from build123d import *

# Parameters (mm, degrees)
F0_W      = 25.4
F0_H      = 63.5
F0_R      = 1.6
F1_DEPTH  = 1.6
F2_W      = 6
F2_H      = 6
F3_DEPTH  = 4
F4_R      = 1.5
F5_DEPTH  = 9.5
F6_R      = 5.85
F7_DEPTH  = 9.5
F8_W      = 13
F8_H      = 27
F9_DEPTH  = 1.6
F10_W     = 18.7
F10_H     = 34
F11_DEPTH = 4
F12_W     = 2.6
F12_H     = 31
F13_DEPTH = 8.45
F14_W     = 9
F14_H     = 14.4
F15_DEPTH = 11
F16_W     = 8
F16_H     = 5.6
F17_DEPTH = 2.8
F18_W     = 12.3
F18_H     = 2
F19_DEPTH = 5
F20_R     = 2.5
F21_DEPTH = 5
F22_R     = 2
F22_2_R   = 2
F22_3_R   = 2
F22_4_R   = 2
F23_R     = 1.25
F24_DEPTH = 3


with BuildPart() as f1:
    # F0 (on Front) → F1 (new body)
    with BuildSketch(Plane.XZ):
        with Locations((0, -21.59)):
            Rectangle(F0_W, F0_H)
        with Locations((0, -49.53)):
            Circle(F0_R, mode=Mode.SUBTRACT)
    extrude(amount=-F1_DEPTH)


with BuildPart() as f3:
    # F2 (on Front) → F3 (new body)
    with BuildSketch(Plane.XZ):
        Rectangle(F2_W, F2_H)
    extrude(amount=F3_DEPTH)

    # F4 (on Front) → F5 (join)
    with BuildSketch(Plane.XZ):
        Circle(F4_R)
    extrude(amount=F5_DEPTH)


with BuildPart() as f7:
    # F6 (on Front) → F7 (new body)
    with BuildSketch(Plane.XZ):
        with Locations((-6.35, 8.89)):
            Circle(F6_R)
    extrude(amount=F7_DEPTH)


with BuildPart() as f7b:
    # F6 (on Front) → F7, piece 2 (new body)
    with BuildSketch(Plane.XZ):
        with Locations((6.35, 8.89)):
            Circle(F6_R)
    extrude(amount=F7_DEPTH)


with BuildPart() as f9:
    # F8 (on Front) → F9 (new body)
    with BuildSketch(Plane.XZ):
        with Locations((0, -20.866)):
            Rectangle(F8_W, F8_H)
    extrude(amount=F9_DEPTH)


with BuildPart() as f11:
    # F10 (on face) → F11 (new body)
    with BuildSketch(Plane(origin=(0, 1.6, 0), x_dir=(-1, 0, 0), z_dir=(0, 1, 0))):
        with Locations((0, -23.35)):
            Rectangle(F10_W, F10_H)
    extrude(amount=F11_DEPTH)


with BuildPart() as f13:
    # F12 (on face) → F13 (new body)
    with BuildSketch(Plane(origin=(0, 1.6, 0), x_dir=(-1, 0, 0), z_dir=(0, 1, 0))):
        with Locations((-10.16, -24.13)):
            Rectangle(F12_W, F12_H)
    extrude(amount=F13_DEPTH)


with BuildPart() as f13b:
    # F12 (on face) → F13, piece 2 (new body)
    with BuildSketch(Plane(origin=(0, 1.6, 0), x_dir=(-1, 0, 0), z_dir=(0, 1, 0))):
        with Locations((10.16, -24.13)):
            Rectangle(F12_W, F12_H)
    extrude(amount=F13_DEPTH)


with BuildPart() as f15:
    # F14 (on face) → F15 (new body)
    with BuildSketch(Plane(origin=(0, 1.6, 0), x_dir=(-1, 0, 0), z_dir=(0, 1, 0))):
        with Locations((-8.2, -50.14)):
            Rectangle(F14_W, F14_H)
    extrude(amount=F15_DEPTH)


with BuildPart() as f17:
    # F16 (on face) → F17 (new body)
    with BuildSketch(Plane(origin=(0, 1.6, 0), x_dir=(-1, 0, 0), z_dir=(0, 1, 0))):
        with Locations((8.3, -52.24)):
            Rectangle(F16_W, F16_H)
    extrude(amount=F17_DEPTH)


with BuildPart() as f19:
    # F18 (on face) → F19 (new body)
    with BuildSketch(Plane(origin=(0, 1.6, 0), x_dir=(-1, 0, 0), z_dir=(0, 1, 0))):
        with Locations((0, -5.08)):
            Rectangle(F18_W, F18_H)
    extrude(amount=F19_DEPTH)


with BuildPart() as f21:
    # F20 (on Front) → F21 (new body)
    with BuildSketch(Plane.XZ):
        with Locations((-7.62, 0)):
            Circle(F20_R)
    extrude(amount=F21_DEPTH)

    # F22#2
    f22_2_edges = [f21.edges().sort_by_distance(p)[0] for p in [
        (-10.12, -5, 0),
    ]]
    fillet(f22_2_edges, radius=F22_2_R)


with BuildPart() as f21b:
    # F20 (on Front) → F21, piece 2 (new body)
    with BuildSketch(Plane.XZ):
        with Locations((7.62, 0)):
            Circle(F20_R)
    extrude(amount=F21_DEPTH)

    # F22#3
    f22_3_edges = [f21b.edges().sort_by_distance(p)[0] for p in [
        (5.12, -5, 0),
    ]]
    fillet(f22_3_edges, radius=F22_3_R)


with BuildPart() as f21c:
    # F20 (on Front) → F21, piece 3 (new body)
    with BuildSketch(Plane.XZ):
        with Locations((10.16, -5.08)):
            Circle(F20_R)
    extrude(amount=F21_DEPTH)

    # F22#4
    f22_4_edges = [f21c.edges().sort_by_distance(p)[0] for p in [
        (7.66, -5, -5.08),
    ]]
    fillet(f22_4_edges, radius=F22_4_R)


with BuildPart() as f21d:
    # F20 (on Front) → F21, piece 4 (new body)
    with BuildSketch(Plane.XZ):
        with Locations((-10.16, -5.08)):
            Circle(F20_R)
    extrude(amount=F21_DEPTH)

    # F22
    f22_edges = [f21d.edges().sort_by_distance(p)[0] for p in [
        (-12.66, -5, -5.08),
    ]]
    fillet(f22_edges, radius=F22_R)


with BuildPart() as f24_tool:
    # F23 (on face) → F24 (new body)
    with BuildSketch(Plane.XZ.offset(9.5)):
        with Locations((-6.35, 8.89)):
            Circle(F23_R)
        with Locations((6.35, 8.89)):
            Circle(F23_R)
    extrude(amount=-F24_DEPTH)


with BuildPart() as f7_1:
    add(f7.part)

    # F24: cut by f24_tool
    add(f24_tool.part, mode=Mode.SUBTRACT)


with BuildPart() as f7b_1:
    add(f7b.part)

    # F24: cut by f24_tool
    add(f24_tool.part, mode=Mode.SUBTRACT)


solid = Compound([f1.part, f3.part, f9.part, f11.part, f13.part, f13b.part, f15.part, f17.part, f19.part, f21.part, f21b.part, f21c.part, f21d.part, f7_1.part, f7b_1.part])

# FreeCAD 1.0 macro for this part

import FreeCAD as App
import Part
import Sketcher

V = App.Vector


def edges_at(feature, points):
    """Names of the edges that pass closest to the given points."""
    edges = feature.Shape.Edges
    near = lambda p: min(range(len(edges)), key=lambda i: edges[i].distToShape(Part.Vertex(*p))[0])
    return sorted({f"Edge{near(p) + 1}" for p in points})


def add_polygon(sketch, points):
    """Adds a closed chain of lines whose ends are joined by coincident constraints."""
    first, n = sketch.GeometryCount, len(points)
    for a, b in zip(points, points[1:] + points[:1]):
        sketch.addGeometry(Part.LineSegment(App.Vector(*a, 0), App.Vector(*b, 0)), False)
    for i in range(n):
        sketch.addConstraint(Sketcher.Constraint("Coincident", first + i, 2, first + (i + 1) % n, 1))

doc = App.newDocument("Part")
body = doc.addObject("PartDesign::Body", "Body")

# Sketch on XZ plane
sketch1 = body.newObject("Sketcher::SketchObject", "Sketch")
sketch1.AttachmentSupport = (doc.getObject("XZ_Plane"), [""])
sketch1.MapMode = "FlatFace"
add_polygon(sketch1, [(-12.7, 10.2), (-12.7, -53.3), (12.7, -53.3), (12.7, 10.2)])  # lines 0-3
sketch1.addGeometry(Part.Circle(V(0, -49.5, 0), V(0, 0, 1), 1.6), False)  # 4
sketch1.addConstraint([
    Sketcher.Constraint("Vertical", 0),
    Sketcher.Constraint("Horizontal", 1),
    Sketcher.Constraint("Vertical", 2),
    Sketcher.Constraint("Horizontal", 3),
    Sketcher.Constraint("PointOnObject", 4, 3, -2),
    Sketcher.Constraint("Diameter", 4, 3.2),
    Sketcher.Constraint("DistanceX", 1, 1, 1, 2, 25.4),
    Sketcher.Constraint("DistanceY", 0, 2, 0, 1, 63.5),
    Sketcher.Constraint("DistanceX", 0, 2, -1, 1, 12.7),
    Sketcher.Constraint("DistanceY", 4, 3, -1, 1, 49.53),
    Sketcher.Constraint("DistanceY", 0, 2, -1, 1, 53.34),
])
pad1 = body.newObject("PartDesign::Pad", "Pad")
pad1.Profile = sketch1
pad1.Length = 1.6
pad1.Reversed = True
body2 = doc.addObject("PartDesign::Body", "Body001")

# Sketch on XZ plane
sketch2 = body2.newObject("Sketcher::SketchObject", "Sketch001")
sketch2.AttachmentSupport = (doc.getObject("XZ_Plane001"), [""])
sketch2.MapMode = "FlatFace"
add_polygon(sketch2, [(-3, 3), (-3, -3), (3, -3), (3, 3)])  # lines 0-3
sketch2.addConstraint([
    Sketcher.Constraint("Vertical", 0),
    Sketcher.Constraint("Horizontal", 1),
    Sketcher.Constraint("Vertical", 2),
    Sketcher.Constraint("Horizontal", 3),
    Sketcher.Constraint("Symmetric", 0, 2, 2, 2, -1, 1),
    Sketcher.Constraint("Equal", 3, 0),
    Sketcher.Constraint("DistanceX", 1, 1, 1, 2, 6.0),
])
pad2 = body2.newObject("PartDesign::Pad", "Pad001")
pad2.Profile = sketch2
pad2.Length = 4

# Sketch on XZ plane
sketch3 = body2.newObject("Sketcher::SketchObject", "Sketch002")
sketch3.AttachmentSupport = (doc.getObject("XZ_Plane001"), [""])
sketch3.MapMode = "FlatFace"
sketch3.addGeometry(Part.Circle(V(0, 0, 0), V(0, 0, 1), 1.5), False)
sketch3.addConstraint([
    Sketcher.Constraint("Coincident", 0, 3, -1, 1),
    Sketcher.Constraint("Diameter", 0, 3.0),
])
pad3 = body2.newObject("PartDesign::Pad", "Pad002")
pad3.Profile = sketch3
pad3.Length = 9.5
body3 = doc.addObject("PartDesign::Body", "Body002")

# Sketch on XZ plane
sketch4 = body3.newObject("Sketcher::SketchObject", "Sketch003")
sketch4.AttachmentSupport = (doc.getObject("XZ_Plane002"), [""])
sketch4.MapMode = "FlatFace"
sketch4.addGeometry(Part.Circle(V(-6, 9, 0), V(0, 0, 1), 6), False)
sketch4.addConstraint([
    Sketcher.Constraint("Diameter", 0, 11.7),
    Sketcher.Constraint("DistanceX", 0, 3, -1, 1, 6.35),
    Sketcher.Constraint("DistanceY", -1, 1, 0, 3, 8.89),
])
pad4 = body3.newObject("PartDesign::Pad", "Pad003")
pad4.Profile = sketch4
pad4.Length = 9.5
body4 = doc.addObject("PartDesign::Body", "Body003")

# Sketch on XZ plane
sketch5 = body4.newObject("Sketcher::SketchObject", "Sketch004")
sketch5.AttachmentSupport = (doc.getObject("XZ_Plane003"), [""])
sketch5.MapMode = "FlatFace"
sketch5.addGeometry(Part.Circle(V(6, 9, 0), V(0, 0, 1), 6), False)
sketch5.addConstraint([
    Sketcher.Constraint("Diameter", 0, 11.7),
    Sketcher.Constraint("DistanceX", -1, 1, 0, 3, 6.35),
    Sketcher.Constraint("DistanceY", -1, 1, 0, 3, 8.89),
])
pad5 = body4.newObject("PartDesign::Pad", "Pad004")
pad5.Profile = sketch5
pad5.Length = 9.5
body5 = doc.addObject("PartDesign::Body", "Body004")

# Sketch on XZ plane
sketch6 = body5.newObject("Sketcher::SketchObject", "Sketch005")
sketch6.AttachmentSupport = (doc.getObject("XZ_Plane004"), [""])
sketch6.MapMode = "FlatFace"
add_polygon(sketch6, [(-6, -7), (-6, -34), (6, -34), (6, -7)])  # lines 0-3
sketch6.addConstraint([
    Sketcher.Constraint("Vertical", 0),
    Sketcher.Constraint("Horizontal", 1),
    Sketcher.Constraint("Vertical", 2),
    Sketcher.Constraint("Horizontal", 3),
    Sketcher.Constraint("DistanceX", 1, 1, 1, 2, 13.0),
    Sketcher.Constraint("DistanceY", 0, 2, 0, 1, 27.0),
    Sketcher.Constraint("DistanceX", 0, 2, -1, 1, 6.5),
    Sketcher.Constraint("DistanceY", 0, 2, -1, 1, 34.366),
])
pad6 = body5.newObject("PartDesign::Pad", "Pad005")
pad6.Profile = sketch6
pad6.Length = 1.6
body6 = doc.addObject("PartDesign::Body", "Body005")

# Sketch on XZ plane
sketch7 = body6.newObject("Sketcher::SketchObject", "Sketch006")
sketch7.AttachmentSupport = (doc.getObject("XZ_Plane005"), [""])
sketch7.MapMode = "FlatFace"
sketch7.AttachmentOffset = App.Placement(V(0, 0, -1.6), App.Rotation())
add_polygon(sketch7, [(9, -6), (9, -40), (-9, -40), (-9, -6)])  # lines 0-3
sketch7.addConstraint([
    Sketcher.Constraint("Vertical", 0),
    Sketcher.Constraint("Horizontal", 1),
    Sketcher.Constraint("Vertical", 2),
    Sketcher.Constraint("Horizontal", 3),
    Sketcher.Constraint("DistanceY", 0, 2, 0, 1, 34.0),
    Sketcher.Constraint("DistanceX", 1, 2, 1, 1, 18.7),
    Sketcher.Constraint("DistanceX", -1, 1, 0, 2, 9.35),
    Sketcher.Constraint("DistanceY", 0, 2, -1, 1, 40.35),
])
pad7 = body6.newObject("PartDesign::Pad", "Pad006")
pad7.Profile = sketch7
pad7.Length = 4
pad7.Reversed = True
body7 = doc.addObject("PartDesign::Body", "Body006")

# Sketch on XZ plane
sketch8 = body7.newObject("Sketcher::SketchObject", "Sketch007")
sketch8.AttachmentSupport = (doc.getObject("XZ_Plane006"), [""])
sketch8.MapMode = "FlatFace"
sketch8.AttachmentOffset = App.Placement(V(0, 0, -1.6), App.Rotation())
add_polygon(sketch8, [(11.5, -8.6), (11.5, -39.6), (8.9, -39.6), (8.9, -8.6)])  # lines 0-3
sketch8.addConstraint([
    Sketcher.Constraint("Vertical", 0),
    Sketcher.Constraint("Horizontal", 1),
    Sketcher.Constraint("Vertical", 2),
    Sketcher.Constraint("Horizontal", 3),
    Sketcher.Constraint("DistanceY", 0, 2, 0, 1, 31.0),
    Sketcher.Constraint("DistanceX", 1, 2, 1, 1, 2.6),
    Sketcher.Constraint("DistanceX", -1, 1, 0, 2, 11.46),
    Sketcher.Constraint("DistanceY", 0, 2, -1, 1, 39.63),
])
pad8 = body7.newObject("PartDesign::Pad", "Pad007")
pad8.Profile = sketch8
pad8.Length = 8.45
pad8.Reversed = True
body8 = doc.addObject("PartDesign::Body", "Body007")

# Sketch on XZ plane
sketch9 = body8.newObject("Sketcher::SketchObject", "Sketch008")
sketch9.AttachmentSupport = (doc.getObject("XZ_Plane007"), [""])
sketch9.MapMode = "FlatFace"
sketch9.AttachmentOffset = App.Placement(V(0, 0, -1.6), App.Rotation())
add_polygon(sketch9, [(-8.9, -8.6), (-8.9, -39.6), (-11.5, -39.6), (-11.5, -8.6)])  # lines 0-3
sketch9.addConstraint([
    Sketcher.Constraint("Vertical", 0),
    Sketcher.Constraint("Horizontal", 1),
    Sketcher.Constraint("Vertical", 2),
    Sketcher.Constraint("Horizontal", 3),
    Sketcher.Constraint("DistanceY", 0, 2, 0, 1, 31.0),
    Sketcher.Constraint("DistanceX", 1, 2, 1, 1, 2.6),
    Sketcher.Constraint("DistanceX", 0, 2, -1, 1, 8.86),
    Sketcher.Constraint("DistanceY", 0, 2, -1, 1, 39.63),
])
pad9 = body8.newObject("PartDesign::Pad", "Pad008")
pad9.Profile = sketch9
pad9.Length = 8.45
pad9.Reversed = True
body9 = doc.addObject("PartDesign::Body", "Body008")

# Sketch on XZ plane
sketch10 = body9.newObject("Sketcher::SketchObject", "Sketch009")
sketch10.AttachmentSupport = (doc.getObject("XZ_Plane008"), [""])
sketch10.MapMode = "FlatFace"
sketch10.AttachmentOffset = App.Placement(V(0, 0, -1.6), App.Rotation())
add_polygon(sketch10, [(13, -43), (13, -57), (4, -57), (4, -43)])  # lines 0-3
sketch10.addConstraint([
    Sketcher.Constraint("Vertical", 0),
    Sketcher.Constraint("Horizontal", 1),
    Sketcher.Constraint("Vertical", 2),
    Sketcher.Constraint("Horizontal", 3),
    Sketcher.Constraint("DistanceX", 1, 2, 1, 1, 9.0),
    Sketcher.Constraint("DistanceY", 0, 2, 0, 1, 14.4),
    Sketcher.Constraint("DistanceX", -1, 1, 0, 2, 12.7),
    Sketcher.Constraint("DistanceY", 0, 2, -1, 1, 57.34),
])
pad10 = body9.newObject("PartDesign::Pad", "Pad009")
pad10.Profile = sketch10
pad10.Length = 11
pad10.Reversed = True
body10 = doc.addObject("PartDesign::Body", "Body009")

# Sketch on XZ plane
sketch11 = body10.newObject("Sketcher::SketchObject", "Sketch010")
sketch11.AttachmentSupport = (doc.getObject("XZ_Plane009"), [""])
sketch11.MapMode = "FlatFace"
sketch11.AttachmentOffset = App.Placement(V(0, 0, -1.6), App.Rotation())
add_polygon(sketch11, [(-4, -49), (-4, -55), (-12, -55), (-12, -49)])  # lines 0-3
sketch11.addConstraint([
    Sketcher.Constraint("Vertical", 0),
    Sketcher.Constraint("Horizontal", 1),
    Sketcher.Constraint("Vertical", 2),
    Sketcher.Constraint("Horizontal", 3),
    Sketcher.Constraint("DistanceX", 1, 2, 1, 1, 8.0),
    Sketcher.Constraint("DistanceY", 0, 2, 0, 1, 5.6),
    Sketcher.Constraint("DistanceX", 0, 2, -1, 1, 4.3),
    Sketcher.Constraint("DistanceY", 0, 2, -1, 1, 55.04),
])
pad11 = body10.newObject("PartDesign::Pad", "Pad010")
pad11.Profile = sketch11
pad11.Length = 2.8
pad11.Reversed = True
body11 = doc.addObject("PartDesign::Body", "Body010")

# Sketch on XZ plane
sketch12 = body11.newObject("Sketcher::SketchObject", "Sketch011")
sketch12.AttachmentSupport = (doc.getObject("XZ_Plane010"), [""])
sketch12.MapMode = "FlatFace"
sketch12.AttachmentOffset = App.Placement(V(0, 0, -1.6), App.Rotation())
add_polygon(sketch12, [(6.2, -4.1), (6.2, -6.1), (-6.2, -6.1), (-6.2, -4.1)])  # lines 0-3
sketch12.addConstraint([
    Sketcher.Constraint("Vertical", 0),
    Sketcher.Constraint("Horizontal", 1),
    Sketcher.Constraint("Vertical", 2),
    Sketcher.Constraint("Horizontal", 3),
    Sketcher.Constraint("DistanceY", 0, 2, 0, 1, 2.0),
    Sketcher.Constraint("DistanceX", 1, 2, 1, 1, 12.3),
    Sketcher.Constraint("DistanceX", -1, 1, 0, 2, 6.15),
    Sketcher.Constraint("DistanceY", 0, 2, -1, 1, 6.08),
])
pad12 = body11.newObject("PartDesign::Pad", "Pad011")
pad12.Profile = sketch12
pad12.Length = 5
pad12.Reversed = True
body12 = doc.addObject("PartDesign::Body", "Body011")

# Sketch on XZ plane
sketch13 = body12.newObject("Sketcher::SketchObject", "Sketch012")
sketch13.AttachmentSupport = (doc.getObject("XZ_Plane011"), [""])
sketch13.MapMode = "FlatFace"
sketch13.addGeometry(Part.Circle(V(-7.6, 0, 0), V(0, 0, 1), 2.5), False)
sketch13.addConstraint([
    Sketcher.Constraint("PointOnObject", 0, 3, -1),
    Sketcher.Constraint("Diameter", 0, 5.0),
    Sketcher.Constraint("DistanceX", 0, 3, -1, 1, 7.62),
])
pad13 = body12.newObject("PartDesign::Pad", "Pad012")
pad13.Profile = sketch13
pad13.Length = 5
doc.recompute()

fillet = body12.newObject("PartDesign::Fillet", "Fillet")
fillet.Base = (pad13, edges_at(pad13, [(-10.12, -5, 0)]))
fillet.Radius = 2
body13 = doc.addObject("PartDesign::Body", "Body012")

# Sketch on XZ plane
sketch14 = body13.newObject("Sketcher::SketchObject", "Sketch013")
sketch14.AttachmentSupport = (doc.getObject("XZ_Plane012"), [""])
sketch14.MapMode = "FlatFace"
sketch14.addGeometry(Part.Circle(V(7.6, 0, 0), V(0, 0, 1), 2.5), False)
sketch14.addConstraint([
    Sketcher.Constraint("PointOnObject", 0, 3, -1),
    Sketcher.Constraint("Diameter", 0, 5.0),
    Sketcher.Constraint("DistanceX", -1, 1, 0, 3, 7.62),
])
pad14 = body13.newObject("PartDesign::Pad", "Pad013")
pad14.Profile = sketch14
pad14.Length = 5
doc.recompute()

fillet2 = body13.newObject("PartDesign::Fillet", "Fillet001")
fillet2.Base = (pad14, edges_at(pad14, [(5.12, -5, 0)]))
fillet2.Radius = 2
body14 = doc.addObject("PartDesign::Body", "Body013")

# Sketch on XZ plane
sketch15 = body14.newObject("Sketcher::SketchObject", "Sketch014")
sketch15.AttachmentSupport = (doc.getObject("XZ_Plane013"), [""])
sketch15.MapMode = "FlatFace"
sketch15.addGeometry(Part.Circle(V(10.2, -5.1, 0), V(0, 0, 1), 2.5), False)
sketch15.addConstraint([
    Sketcher.Constraint("Diameter", 0, 5.0),
    Sketcher.Constraint("DistanceX", -1, 1, 0, 3, 10.16),
    Sketcher.Constraint("DistanceY", 0, 3, -1, 1, 5.08),
])
pad15 = body14.newObject("PartDesign::Pad", "Pad014")
pad15.Profile = sketch15
pad15.Length = 5
doc.recompute()

fillet3 = body14.newObject("PartDesign::Fillet", "Fillet002")
fillet3.Base = (pad15, edges_at(pad15, [(7.66, -5, -5.08)]))
fillet3.Radius = 2
body15 = doc.addObject("PartDesign::Body", "Body014")

# Sketch on XZ plane
sketch16 = body15.newObject("Sketcher::SketchObject", "Sketch015")
sketch16.AttachmentSupport = (doc.getObject("XZ_Plane014"), [""])
sketch16.MapMode = "FlatFace"
sketch16.addGeometry(Part.Circle(V(-10.2, -5.1, 0), V(0, 0, 1), 2.5), False)
sketch16.addConstraint([
    Sketcher.Constraint("Diameter", 0, 5.0),
    Sketcher.Constraint("DistanceX", 0, 3, -1, 1, 10.16),
    Sketcher.Constraint("DistanceY", 0, 3, -1, 1, 5.08),
])
pad16 = body15.newObject("PartDesign::Pad", "Pad015")
pad16.Profile = sketch16
pad16.Length = 5
doc.recompute()

fillet4 = body15.newObject("PartDesign::Fillet", "Fillet003")
fillet4.Base = (pad16, edges_at(pad16, [(-12.66, -5, -5.08)]))
fillet4.Radius = 2
body16 = doc.addObject("PartDesign::Body", "Body015")
body16.AllowCompound = True

# Sketch on XZ plane
sketch17 = body16.newObject("Sketcher::SketchObject", "Sketch016")
sketch17.AttachmentSupport = (doc.getObject("XZ_Plane015"), [""])
sketch17.MapMode = "FlatFace"
sketch17.AttachmentOffset = App.Placement(V(0, 0, 9.5), App.Rotation())
sketch17.addGeometry([
    Part.Circle(V(-6.3, 8.9, 0), V(0, 0, 1), 1.2),
    Part.Circle(V(6.3, 8.9, 0), V(0, 0, 1), 1.2),
], False)
sketch17.addConstraint([
    Sketcher.Constraint("Equal", 0, 1),
    Sketcher.Constraint("Symmetric", 0, 3, 1, 3, -2),
    Sketcher.Constraint("Diameter", 0, 2.5),
    Sketcher.Constraint("DistanceX", 0, 3, 1, 3, 12.7),
    Sketcher.Constraint("DistanceY", -1, 1, 0, 3, 8.89),
])
pad17 = body16.newObject("PartDesign::Pad", "Pad016")
pad17.Profile = sketch17
pad17.Length = 3
pad17.Reversed = True
doc.recompute()

body17 = doc.addObject("PartDesign::Body", "Body016")
body17.BaseFeature = body16
boolean = body3.newObject("PartDesign::Boolean", "Boolean")
boolean.Type = "Cut"
boolean.addObjects([body17])
doc.recompute()

boolean2 = body4.newObject("PartDesign::Boolean", "Boolean001")
boolean2.Type = "Cut"
boolean2.addObjects([body16])

doc.recompute()
